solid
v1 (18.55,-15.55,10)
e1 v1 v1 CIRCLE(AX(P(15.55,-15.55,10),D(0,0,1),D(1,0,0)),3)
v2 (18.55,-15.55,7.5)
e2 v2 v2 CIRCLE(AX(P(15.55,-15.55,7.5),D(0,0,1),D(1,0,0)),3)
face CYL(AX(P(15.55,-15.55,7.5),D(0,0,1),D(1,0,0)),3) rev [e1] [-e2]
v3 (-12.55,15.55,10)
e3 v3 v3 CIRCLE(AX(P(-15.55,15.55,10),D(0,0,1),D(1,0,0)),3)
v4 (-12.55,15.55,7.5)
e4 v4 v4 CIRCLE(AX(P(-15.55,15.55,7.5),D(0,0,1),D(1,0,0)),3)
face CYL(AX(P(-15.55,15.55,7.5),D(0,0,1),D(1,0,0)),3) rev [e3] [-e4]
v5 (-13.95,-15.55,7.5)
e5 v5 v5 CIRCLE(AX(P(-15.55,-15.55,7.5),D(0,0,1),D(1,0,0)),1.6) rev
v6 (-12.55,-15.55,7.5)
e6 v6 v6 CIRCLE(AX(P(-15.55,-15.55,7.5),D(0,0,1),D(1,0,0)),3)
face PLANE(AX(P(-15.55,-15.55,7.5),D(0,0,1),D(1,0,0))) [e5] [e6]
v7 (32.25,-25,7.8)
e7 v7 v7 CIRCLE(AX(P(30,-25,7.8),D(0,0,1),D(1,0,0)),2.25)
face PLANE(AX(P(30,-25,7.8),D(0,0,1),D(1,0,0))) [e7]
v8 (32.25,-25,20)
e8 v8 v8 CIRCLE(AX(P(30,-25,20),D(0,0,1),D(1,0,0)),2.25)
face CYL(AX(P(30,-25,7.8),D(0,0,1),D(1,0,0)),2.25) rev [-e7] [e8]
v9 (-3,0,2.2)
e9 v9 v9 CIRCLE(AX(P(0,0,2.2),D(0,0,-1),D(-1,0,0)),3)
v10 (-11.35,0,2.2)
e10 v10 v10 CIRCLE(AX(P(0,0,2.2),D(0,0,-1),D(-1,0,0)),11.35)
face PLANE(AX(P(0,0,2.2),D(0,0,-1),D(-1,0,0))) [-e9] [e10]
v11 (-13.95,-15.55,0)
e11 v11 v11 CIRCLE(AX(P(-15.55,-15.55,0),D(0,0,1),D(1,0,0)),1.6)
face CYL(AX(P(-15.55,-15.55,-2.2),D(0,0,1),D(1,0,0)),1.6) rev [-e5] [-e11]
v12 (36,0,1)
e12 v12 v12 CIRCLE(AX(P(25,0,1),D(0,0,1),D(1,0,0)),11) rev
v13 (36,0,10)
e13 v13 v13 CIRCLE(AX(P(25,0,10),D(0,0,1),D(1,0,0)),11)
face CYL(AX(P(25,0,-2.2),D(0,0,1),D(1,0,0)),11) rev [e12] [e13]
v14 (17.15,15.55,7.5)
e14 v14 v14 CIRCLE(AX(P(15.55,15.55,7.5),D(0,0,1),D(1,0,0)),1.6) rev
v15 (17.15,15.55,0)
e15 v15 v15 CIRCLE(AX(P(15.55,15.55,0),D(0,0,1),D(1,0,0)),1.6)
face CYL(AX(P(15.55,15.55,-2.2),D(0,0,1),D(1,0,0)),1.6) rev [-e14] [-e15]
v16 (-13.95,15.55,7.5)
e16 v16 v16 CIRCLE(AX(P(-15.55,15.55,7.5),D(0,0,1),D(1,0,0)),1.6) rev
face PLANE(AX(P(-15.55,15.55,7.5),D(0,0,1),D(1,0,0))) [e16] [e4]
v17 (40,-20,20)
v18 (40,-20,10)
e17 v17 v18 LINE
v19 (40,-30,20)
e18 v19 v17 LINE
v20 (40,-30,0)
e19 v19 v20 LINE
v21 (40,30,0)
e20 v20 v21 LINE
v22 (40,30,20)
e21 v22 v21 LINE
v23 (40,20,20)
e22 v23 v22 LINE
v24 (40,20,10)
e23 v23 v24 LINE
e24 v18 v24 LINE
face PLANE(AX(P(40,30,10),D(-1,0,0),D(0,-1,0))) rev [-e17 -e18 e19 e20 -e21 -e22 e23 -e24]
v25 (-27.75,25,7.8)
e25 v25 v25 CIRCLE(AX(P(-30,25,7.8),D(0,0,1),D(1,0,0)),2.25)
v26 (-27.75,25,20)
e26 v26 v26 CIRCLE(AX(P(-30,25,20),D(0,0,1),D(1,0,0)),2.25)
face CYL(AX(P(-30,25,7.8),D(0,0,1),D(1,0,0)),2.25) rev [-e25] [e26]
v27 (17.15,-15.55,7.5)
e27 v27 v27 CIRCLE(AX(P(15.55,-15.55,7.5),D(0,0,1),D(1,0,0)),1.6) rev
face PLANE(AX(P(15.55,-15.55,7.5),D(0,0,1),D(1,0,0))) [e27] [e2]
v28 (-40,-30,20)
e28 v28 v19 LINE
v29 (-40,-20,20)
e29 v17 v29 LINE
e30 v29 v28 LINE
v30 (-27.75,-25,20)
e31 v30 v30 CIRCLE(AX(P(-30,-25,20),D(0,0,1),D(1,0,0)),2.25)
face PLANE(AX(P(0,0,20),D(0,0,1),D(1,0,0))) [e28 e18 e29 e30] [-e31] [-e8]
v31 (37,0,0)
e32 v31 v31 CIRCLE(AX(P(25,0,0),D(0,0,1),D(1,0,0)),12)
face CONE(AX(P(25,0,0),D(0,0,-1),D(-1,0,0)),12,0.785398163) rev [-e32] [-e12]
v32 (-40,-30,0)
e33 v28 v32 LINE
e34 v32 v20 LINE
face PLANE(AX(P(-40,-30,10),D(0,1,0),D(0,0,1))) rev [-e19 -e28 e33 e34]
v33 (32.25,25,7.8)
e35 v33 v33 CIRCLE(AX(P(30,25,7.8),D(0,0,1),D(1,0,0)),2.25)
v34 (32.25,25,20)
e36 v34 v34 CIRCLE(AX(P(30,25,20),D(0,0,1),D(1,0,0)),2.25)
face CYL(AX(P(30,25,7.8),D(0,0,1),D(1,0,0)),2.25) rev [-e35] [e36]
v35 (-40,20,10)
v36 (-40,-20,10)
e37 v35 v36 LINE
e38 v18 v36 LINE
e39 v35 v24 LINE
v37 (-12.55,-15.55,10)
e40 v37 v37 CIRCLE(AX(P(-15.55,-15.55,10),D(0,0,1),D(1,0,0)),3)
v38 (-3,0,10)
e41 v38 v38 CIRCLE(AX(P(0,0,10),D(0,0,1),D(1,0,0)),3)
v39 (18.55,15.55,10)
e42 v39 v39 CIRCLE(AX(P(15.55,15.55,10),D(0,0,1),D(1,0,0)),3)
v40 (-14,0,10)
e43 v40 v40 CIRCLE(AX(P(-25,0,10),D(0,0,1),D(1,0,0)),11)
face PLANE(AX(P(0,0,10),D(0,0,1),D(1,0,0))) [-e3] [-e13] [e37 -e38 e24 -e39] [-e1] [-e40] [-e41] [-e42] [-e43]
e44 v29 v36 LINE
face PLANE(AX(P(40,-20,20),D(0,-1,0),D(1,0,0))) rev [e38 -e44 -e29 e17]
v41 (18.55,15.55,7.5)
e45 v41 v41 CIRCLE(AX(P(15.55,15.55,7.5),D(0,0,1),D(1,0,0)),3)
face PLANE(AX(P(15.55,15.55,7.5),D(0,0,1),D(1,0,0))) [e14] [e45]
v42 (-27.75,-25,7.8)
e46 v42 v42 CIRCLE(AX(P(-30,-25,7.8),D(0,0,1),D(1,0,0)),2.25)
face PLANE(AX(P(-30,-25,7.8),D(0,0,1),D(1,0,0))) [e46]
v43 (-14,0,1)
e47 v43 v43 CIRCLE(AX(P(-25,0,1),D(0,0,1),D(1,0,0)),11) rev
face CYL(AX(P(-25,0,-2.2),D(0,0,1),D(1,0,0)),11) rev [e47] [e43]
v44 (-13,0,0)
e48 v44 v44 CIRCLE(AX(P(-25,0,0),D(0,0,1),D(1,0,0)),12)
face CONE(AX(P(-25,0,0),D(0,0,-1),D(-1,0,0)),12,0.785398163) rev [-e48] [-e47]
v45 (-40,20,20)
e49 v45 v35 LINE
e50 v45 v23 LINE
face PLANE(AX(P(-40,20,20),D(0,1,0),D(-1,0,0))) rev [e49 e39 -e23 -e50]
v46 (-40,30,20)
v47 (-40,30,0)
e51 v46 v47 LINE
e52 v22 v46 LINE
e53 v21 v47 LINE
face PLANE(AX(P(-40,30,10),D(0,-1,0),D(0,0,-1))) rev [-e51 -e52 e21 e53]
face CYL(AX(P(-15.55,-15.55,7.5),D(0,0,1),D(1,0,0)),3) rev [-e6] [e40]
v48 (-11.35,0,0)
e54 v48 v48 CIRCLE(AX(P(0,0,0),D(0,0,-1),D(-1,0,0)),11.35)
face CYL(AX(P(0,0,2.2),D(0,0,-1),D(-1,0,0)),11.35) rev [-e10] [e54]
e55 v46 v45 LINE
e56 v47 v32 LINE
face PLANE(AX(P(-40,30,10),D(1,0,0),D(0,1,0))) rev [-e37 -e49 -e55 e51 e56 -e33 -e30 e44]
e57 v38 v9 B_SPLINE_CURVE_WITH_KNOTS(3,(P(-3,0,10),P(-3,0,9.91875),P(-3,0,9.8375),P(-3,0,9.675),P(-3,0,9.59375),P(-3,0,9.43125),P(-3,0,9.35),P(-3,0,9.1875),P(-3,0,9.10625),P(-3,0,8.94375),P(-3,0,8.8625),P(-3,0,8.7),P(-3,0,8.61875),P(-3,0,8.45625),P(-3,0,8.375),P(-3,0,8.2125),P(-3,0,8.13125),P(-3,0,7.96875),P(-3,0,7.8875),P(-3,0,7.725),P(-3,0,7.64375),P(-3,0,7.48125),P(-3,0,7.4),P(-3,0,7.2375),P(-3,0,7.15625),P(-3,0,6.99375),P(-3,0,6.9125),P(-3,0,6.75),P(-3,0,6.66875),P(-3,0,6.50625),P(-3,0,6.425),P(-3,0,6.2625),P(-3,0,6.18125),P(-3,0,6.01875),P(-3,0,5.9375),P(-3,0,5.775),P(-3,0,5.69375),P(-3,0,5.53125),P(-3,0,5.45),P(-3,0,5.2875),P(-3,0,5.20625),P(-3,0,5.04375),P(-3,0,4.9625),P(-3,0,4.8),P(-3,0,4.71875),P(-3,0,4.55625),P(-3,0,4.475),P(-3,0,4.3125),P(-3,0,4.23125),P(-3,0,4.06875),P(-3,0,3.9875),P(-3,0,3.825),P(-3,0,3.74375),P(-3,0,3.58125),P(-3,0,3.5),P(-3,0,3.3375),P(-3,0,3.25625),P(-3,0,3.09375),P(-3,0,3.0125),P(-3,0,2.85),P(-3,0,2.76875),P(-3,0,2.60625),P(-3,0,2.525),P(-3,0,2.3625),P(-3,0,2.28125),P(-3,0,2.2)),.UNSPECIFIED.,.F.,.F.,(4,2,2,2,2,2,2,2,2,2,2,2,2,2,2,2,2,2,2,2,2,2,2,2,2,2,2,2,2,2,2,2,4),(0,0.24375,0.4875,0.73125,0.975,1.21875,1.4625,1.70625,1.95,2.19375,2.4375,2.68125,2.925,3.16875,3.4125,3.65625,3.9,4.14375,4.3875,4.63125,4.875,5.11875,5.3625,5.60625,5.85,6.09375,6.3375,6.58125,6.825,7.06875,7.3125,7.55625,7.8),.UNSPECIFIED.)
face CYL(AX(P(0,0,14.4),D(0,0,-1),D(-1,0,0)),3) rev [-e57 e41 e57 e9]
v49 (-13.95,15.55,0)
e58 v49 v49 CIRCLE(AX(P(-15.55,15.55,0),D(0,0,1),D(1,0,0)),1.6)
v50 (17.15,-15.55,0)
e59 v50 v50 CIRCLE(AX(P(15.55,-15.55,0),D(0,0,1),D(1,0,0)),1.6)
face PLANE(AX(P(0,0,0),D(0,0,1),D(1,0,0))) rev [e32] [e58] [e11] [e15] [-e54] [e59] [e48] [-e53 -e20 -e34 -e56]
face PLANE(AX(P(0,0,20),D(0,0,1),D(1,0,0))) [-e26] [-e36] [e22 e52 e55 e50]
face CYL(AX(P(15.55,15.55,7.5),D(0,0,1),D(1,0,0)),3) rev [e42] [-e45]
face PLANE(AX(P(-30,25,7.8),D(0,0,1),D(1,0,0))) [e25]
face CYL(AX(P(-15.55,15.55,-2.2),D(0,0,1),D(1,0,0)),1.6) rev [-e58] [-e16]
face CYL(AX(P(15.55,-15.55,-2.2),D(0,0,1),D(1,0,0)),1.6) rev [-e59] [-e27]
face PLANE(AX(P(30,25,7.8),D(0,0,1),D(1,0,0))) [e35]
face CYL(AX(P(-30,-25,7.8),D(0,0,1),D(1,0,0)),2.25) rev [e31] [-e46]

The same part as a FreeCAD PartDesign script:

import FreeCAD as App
import Part
import Sketcher


def edges_at(feature, points):
    """Names of the edges that pass closest to the given points."""
    edges = feature.Shape.Edges
    near = lambda p: min(range(len(edges)), key=lambda i: edges[i].distToShape(Part.Vertex(*p))[0])
    return sorted({f"Edge{near(p) + 1}" for p in points})


def add_polygon(sketch, points):
    """Adds a closed chain of lines whose ends are joined by coincident constraints."""
    first, n = sketch.GeometryCount, len(points)
    for a, b in zip(points, points[1:] + points[:1]):
        sketch.addGeometry(Part.LineSegment(App.Vector(*a, 0), App.Vector(*b, 0)), False)
    for i in range(n):
        sketch.addConstraint(Sketcher.Constraint("Coincident", first + i, 2, first + (i + 1) % n, 1))

doc = App.newDocument("Part")
body = doc.addObject("PartDesign::Body", "Body")

sketch1 = body.newObject("Sketcher::SketchObject", "Sketch")
sketch1.AttachmentSupport = (doc.getObject("XY_Plane"), [""])
sketch1.MapMode = "FlatFace"
add_polygon(sketch1, [(-40, 30), (-40, -30), (40, -30), (40, 30)])
sketch1.addConstraint([
    Sketcher.Constraint("Vertical", 0),
    Sketcher.Constraint("Horizontal", 1),
    Sketcher.Constraint("Vertical", 2),
    Sketcher.Constraint("Horizontal", 3),
    Sketcher.Constraint("Symmetric", 0, 2, 2, 2, -1, 1),
    Sketcher.Constraint("DistanceX", 1, 1, 1, 2, 80.0),
    Sketcher.Constraint("DistanceY", 0, 2, 0, 1, 60.0),
])
pad1 = body.newObject("PartDesign::Pad", "Pad")
pad1.Profile = sketch1
pad1.Length = 10

sketch2 = body.newObject("Sketcher::SketchObject", "Sketch001")
sketch2.AttachmentSupport = (doc.getObject("XY_Plane"), [""])
sketch2.MapMode = "FlatFace"
sketch2.AttachmentOffset = App.Placement(App.Vector(0, 0, 10), App.Rotation())
add_polygon(sketch2, [(-40, 30), (-40, 20), (40, 20), (40, 30)])
add_polygon(sketch2, [(-40, -20), (-40, -30), (40, -30), (40, -20)])
sketch2.addConstraint([
    Sketcher.Constraint("Vertical", 0),
    Sketcher.Constraint("Horizontal", 1),
    Sketcher.Constraint("Vertical", 2),
    Sketcher.Constraint("Horizontal", 3),
    Sketcher.Constraint("Vertical", 4),
    Sketcher.Constraint("Horizontal", 5),
    Sketcher.Constraint("Vertical", 6),
    Sketcher.Constraint("Horizontal", 7),
    Sketcher.Constraint("Symmetric", 2, 2, 4, 2, -1, 1),
    Sketcher.Constraint("Symmetric", 0, 2, 6, 2, -1, 1),
    Sketcher.Constraint("Vertical", 3, 2, 4, 2),
    Sketcher.Constraint("DistanceX", 1, 1, 1, 2, 80.0),
    Sketcher.Constraint("DistanceY", 0, 2, 0, 1, 10.0),
    Sketcher.Constraint("DistanceY", -1, 1, 0, 2, 20.0),
])
pad2 = body.newObject("PartDesign::Pad", "Pad001")
pad2.Profile = sketch2
pad2.Length = 10

sketch3 = body.newObject("Sketcher::SketchObject", "Sketch002")
sketch3.AttachmentSupport = (doc.getObject("XY_Plane"), [""])
sketch3.MapMode = "FlatFace"
sketch3.addGeometry(Part.Circle(App.Vector(0, 0, 0), App.Vector(0, 0, 1), 11.35), False)
sketch3.addConstraint([
    Sketcher.Constraint("Coincident", 0, 3, -1, 1),
    Sketcher.Constraint("Diameter", 0, 22.7),
])
pocket1 = body.newObject("PartDesign::Pocket", "Pocket")
pocket1.Profile = sketch3
pocket1.Length = 2.2
pocket1.Reversed = True

sketch4 = body.newObject("Sketcher::SketchObject", "Sketch003")
sketch4.AttachmentSupport = (doc.getObject("XY_Plane"), [""])
sketch4.MapMode = "FlatFace"
sketch4.AttachmentOffset = App.Placement(App.Vector(0, 0, 2.2), App.Rotation())
sketch4.addGeometry(Part.Circle(App.Vector(0, 0, 0), App.Vector(0, 0, 1), 3), False)
sketch4.addConstraint([
    Sketcher.Constraint("Coincident", 0, 3, -1, 1),
    Sketcher.Constraint("Diameter", 0, 6.0),
])
pocket2 = body.newObject("PartDesign::Pocket", "Pocket001")
pocket2.Profile = sketch4
pocket2.Length = 12.2
pocket2.Reversed = True

sketch5 = body.newObject("Sketcher::SketchObject", "Sketch004")
sketch5.AttachmentSupport = (doc.getObject("XY_Plane"), [""])
sketch5.MapMode = "FlatFace"
sketch5.AttachmentOffset = App.Placement(App.Vector(0, 0, 20), App.Rotation())
sketch5.addGeometry([
    Part.Circle(App.Vector(30, 25, 0), App.Vector(0, 0, 1), 2.25),
    Part.Circle(App.Vector(-30, 25, 0), App.Vector(0, 0, 1), 2.25),
    Part.Circle(App.Vector(-30, -25, 0), App.Vector(0, 0, 1), 2.25),
    Part.Circle(App.Vector(30, -25, 0), App.Vector(0, 0, 1), 2.25),
], False)
sketch5.addConstraint([
    Sketcher.Constraint("Equal", 0, 1),
    Sketcher.Constraint("Equal", 1, 2),
    Sketcher.Constraint("Equal", 2, 3),
    Sketcher.Constraint("Symmetric", 0, 3, 2, 3, -1, 1),
    Sketcher.Constraint("Symmetric", 1, 3, 3, 3, -1, 1),
    Sketcher.Constraint("Symmetric", 0, 3, 1, 3, -2),
    Sketcher.Constraint("Diameter", 0, 4.5),
    Sketcher.Constraint("DistanceX", -1, 1, 0, 3, 30.0),
    Sketcher.Constraint("DistanceY", -1, 1, 0, 3, 25.0),
])
pocket3 = body.newObject("PartDesign::Pocket", "Pocket002")
pocket3.Profile = sketch5
pocket3.Length = 12.2

sketch6 = body.newObject("Sketcher::SketchObject", "Sketch005")
sketch6.AttachmentSupport = (doc.getObject("XY_Plane"), [""])
sketch6.MapMode = "FlatFace"
sketch6.AttachmentOffset = App.Placement(App.Vector(0, 0, 10), App.Rotation())
sketch6.addGeometry([
    Part.Circle(App.Vector(-25, 0, 0), App.Vector(0, 0, 1), 11),
    Part.Circle(App.Vector(25, 0, 0), App.Vector(0, 0, 1), 11),
], False)
sketch6.addConstraint([
    Sketcher.Constraint("Equal", 0, 1),
    Sketcher.Constraint("Symmetric", 0, 3, 1, 3, -1, 1),
    Sketcher.Constraint("PointOnObject", 0, 3, -1),
    Sketcher.Constraint("Diameter", 0, 22.0),
    Sketcher.Constraint("DistanceX", 0, 3, -1, 1, 25.0),
])
pocket4 = body.newObject("PartDesign::Pocket", "Pocket003")
pocket4.Profile = sketch6
pocket4.Length = 12.2

sketch7 = body.newObject("Sketcher::SketchObject", "Sketch006")
sketch7.AttachmentSupport = (doc.getObject("XY_Plane"), [""])
sketch7.MapMode = "FlatFace"
sketch7.AttachmentOffset = App.Placement(App.Vector(0, 0, 10), App.Rotation())
sketch7.addGeometry([
    Part.Circle(App.Vector(-15.55, 15.55, 0), App.Vector(0, 0, 1), 1.6),
    Part.Circle(App.Vector(15.55, 15.55, 0), App.Vector(0, 0, 1), 1.6),
    Part.Circle(App.Vector(15.55, -15.55, 0), App.Vector(0, 0, 1), 1.6),
    Part.Circle(App.Vector(-15.55, -15.55, 0), App.Vector(0, 0, 1), 1.6),
], False)
sketch7.addConstraint([
    Sketcher.Constraint("Equal", 0, 1),
    Sketcher.Constraint("Equal", 1, 2),
    Sketcher.Constraint("Equal", 2, 3),
    Sketcher.Constraint("Symmetric", 0, 3, 2, 3, -1, 1),
    Sketcher.Constraint("Symmetric", 1, 3, 3, 3, -1, 1),
    Sketcher.Constraint("Symmetric", 0, 3, 1, 3, -2),
    Sketcher.Constraint("Diameter", 0, 3.2),
    Sketcher.Constraint("DistanceX", 0, 3, 1, 3, 31.1),
    Sketcher.Constraint("DistanceY", 2, 3, 1, 3, 31.1),
])
pocket5 = body.newObject("PartDesign::Pocket", "Pocket004")
pocket5.Profile = sketch7
pocket5.Length = 12.2

sketch8 = body.newObject("Sketcher::SketchObject", "Sketch007")
sketch8.AttachmentSupport = (doc.getObject("XY_Plane"), [""])
sketch8.MapMode = "FlatFace"
sketch8.AttachmentOffset = App.Placement(App.Vector(0, 0, 10), App.Rotation())
sketch8.addGeometry([
    Part.Circle(App.Vector(-15.55, 15.55, 0), App.Vector(0, 0, 1), 3),
    Part.Circle(App.Vector(15.55, 15.55, 0), App.Vector(0, 0, 1), 3),
    Part.Circle(App.Vector(-15.55, -15.55, 0), App.Vector(0, 0, 1), 3),
    Part.Circle(App.Vector(15.55, -15.55, 0), App.Vector(0, 0, 1), 3),
], False)
sketch8.addConstraint([
    Sketcher.Constraint("Equal", 0, 1),
    Sketcher.Constraint("Equal", 1, 2),
    Sketcher.Constraint("Equal", 2, 3),
    Sketcher.Constraint("Symmetric", 1, 3, 2, 3, -1, 1),
    Sketcher.Constraint("Symmetric", 0, 3, 3, 3, -1, 1),
    Sketcher.Constraint("Symmetric", 0, 3, 1, 3, -2),
    Sketcher.Constraint("Diameter", 0, 6.0),
    Sketcher.Constraint("DistanceX", 0, 3, 1, 3, 31.1),
    Sketcher.Constraint("DistanceY", 2, 3, 0, 3, 31.1),
])
pocket6 = body.newObject("PartDesign::Pocket", "Pocket005")
pocket6.Profile = sketch8
pocket6.Length = 2.5
doc.recompute()

chamfer = body.newObject("PartDesign::Chamfer", "Chamfer")
chamfer.Base = (pocket6, edges_at(pocket6, [(-36, 0, 0), (14, 0, 0)]))
chamfer.Size = 1

doc.recompute()
